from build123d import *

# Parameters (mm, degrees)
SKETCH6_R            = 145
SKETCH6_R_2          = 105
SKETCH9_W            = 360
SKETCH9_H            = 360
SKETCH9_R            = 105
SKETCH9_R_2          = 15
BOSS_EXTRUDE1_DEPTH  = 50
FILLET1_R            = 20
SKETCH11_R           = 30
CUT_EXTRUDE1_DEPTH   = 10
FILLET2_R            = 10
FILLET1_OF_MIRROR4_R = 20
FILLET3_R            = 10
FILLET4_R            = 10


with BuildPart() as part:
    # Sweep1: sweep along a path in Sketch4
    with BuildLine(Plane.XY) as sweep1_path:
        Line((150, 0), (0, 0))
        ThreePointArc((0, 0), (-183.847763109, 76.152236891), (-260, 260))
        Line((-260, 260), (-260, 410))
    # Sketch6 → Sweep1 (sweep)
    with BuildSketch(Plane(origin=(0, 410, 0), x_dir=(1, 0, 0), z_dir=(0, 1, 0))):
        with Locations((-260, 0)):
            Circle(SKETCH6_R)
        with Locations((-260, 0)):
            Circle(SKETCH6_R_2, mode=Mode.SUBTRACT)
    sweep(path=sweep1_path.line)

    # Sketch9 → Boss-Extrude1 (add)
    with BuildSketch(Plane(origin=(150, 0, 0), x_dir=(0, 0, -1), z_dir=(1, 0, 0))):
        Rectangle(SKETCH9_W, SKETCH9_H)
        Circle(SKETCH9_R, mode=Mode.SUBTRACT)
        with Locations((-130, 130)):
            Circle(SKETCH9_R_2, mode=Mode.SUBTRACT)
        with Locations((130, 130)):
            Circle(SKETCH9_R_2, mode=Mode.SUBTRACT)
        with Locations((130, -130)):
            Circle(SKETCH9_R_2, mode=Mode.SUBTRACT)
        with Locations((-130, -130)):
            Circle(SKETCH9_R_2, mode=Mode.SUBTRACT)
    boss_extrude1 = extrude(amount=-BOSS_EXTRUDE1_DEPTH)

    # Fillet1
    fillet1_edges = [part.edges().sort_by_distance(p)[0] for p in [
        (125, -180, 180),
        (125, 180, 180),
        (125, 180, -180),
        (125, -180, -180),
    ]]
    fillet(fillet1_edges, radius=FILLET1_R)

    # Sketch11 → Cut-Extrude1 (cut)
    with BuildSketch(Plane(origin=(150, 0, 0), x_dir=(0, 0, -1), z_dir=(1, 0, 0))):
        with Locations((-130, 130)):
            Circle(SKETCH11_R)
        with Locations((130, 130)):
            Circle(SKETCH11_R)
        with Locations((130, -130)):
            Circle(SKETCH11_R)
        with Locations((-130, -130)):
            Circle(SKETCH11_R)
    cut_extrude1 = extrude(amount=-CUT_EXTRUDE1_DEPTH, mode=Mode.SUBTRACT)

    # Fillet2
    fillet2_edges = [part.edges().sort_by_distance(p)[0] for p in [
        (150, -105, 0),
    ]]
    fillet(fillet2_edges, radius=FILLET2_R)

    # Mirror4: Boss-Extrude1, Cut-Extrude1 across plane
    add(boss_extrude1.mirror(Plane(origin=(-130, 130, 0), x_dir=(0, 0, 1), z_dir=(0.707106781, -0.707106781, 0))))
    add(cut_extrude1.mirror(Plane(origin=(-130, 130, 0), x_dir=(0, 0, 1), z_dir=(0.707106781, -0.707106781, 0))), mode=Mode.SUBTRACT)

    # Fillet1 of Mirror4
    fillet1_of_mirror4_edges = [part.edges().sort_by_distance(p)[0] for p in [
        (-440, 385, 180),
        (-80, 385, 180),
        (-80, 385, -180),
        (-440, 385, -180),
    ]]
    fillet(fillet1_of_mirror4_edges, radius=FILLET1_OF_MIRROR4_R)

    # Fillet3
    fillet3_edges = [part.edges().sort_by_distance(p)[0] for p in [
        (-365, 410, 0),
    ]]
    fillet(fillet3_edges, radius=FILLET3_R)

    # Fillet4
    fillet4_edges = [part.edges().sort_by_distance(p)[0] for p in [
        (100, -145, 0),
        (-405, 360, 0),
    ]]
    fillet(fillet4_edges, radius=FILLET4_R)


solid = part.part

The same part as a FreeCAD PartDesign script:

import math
import FreeCAD as App
import Part
import Sketcher
Q = App.Units.Quantity


def edges_at(feature, points):
    """Names of the edges that pass closest to the given points."""
    edges = feature.Shape.Edges
    near = lambda p: min(range(len(edges)), key=lambda i: edges[i].distToShape(Part.Vertex(*p))[0])
    return sorted({f"Edge{near(p) + 1}" for p in points})

doc = App.newDocument("Part")
body = doc.addObject("PartDesign::Body", "Body")

# Sketch on XZ plane
sketch1 = doc.addObject("Sketcher::SketchObject", "Sketch")
body.addObject(sketch1)
sketch1.AttachmentSupport = (doc.XZ_Plane, [""])
sketch1.MapMode = "FlatFace"
sketch1.AttachmentOffset = App.Placement(App.Vector(0, 0, -410), App.Rotation())
sketch1.addGeometry([
    Part.Circle(App.Vector(-260, 0, 0), App.Vector(0, 0, 1), 145),
    Part.Circle(App.Vector(-260, 0, 0), App.Vector(0, 0, 1), 105),
], False)
sketch1.addConstraint([
    Sketcher.Constraint("Coincident", 1, 3, 0, 3),
    Sketcher.Constraint("PointOnObject", 0, 3, -1),
    Sketcher.Constraint("Diameter", 0, Q("290 mm")),
    Sketcher.Constraint("Diameter", 1, Q("210 mm")),
    Sketcher.Constraint("DistanceX", 0, 3, -1, 1, Q("260 mm")),
])

# Sketch on XY plane
sketch2 = doc.addObject("Sketcher::SketchObject", "Sketch001")
body.addObject(sketch2)
sketch2.AttachmentSupport = (doc.XY_Plane, [""])
sketch2.MapMode = "FlatFace"
sketch2.addGeometry([
    Part.LineSegment(App.Vector(150, 0, 0), App.Vector(0, 0, 0)),
    Part.ArcOfCircle(Part.Circle(App.Vector(0, 260, 0), App.Vector(0, 0, 1), 260), math.radians(180), math.radians(270)),
    Part.LineSegment(App.Vector(-260, 260, 0), App.Vector(-260, 410, 0)),
], False)
sketch2.addConstraint([
    Sketcher.Constraint("Tangent", 0, 2, 1, 2),
    Sketcher.Constraint("Tangent", 1, 1, 2, 1),
    Sketcher.Constraint("Horizontal", 0),
    Sketcher.Constraint("Vertical", 2),
    Sketcher.Constraint("Coincident", 0, 2, -1, 1),
    Sketcher.Constraint("Equal", 0, 2),
    Sketcher.Constraint("Radius", 1, Q("260 mm")),
    Sketcher.Constraint("DistanceX", 0, 2, 0, 1, Q("150 mm")),
])
doc.recompute()

additivepipe = doc.addObject("PartDesign::AdditivePipe", "AdditivePipe")
body.addObject(additivepipe)
additivepipe.Profile = sketch1
additivepipe.Spine = (sketch2, ["Edge1", "Edge2", "Edge3"])

# Sketch on YZ plane
sketch3 = doc.addObject("Sketcher::SketchObject", "Sketch002")
body.addObject(sketch3)
sketch3.AttachmentSupport = (doc.YZ_Plane, [""])
sketch3.MapMode = "FlatFace"
sketch3.AttachmentOffset = App.Placement(App.Vector(0, 0, 150), App.Rotation())
sketch3.addGeometry([
    Part.LineSegment(App.Vector(180, 180, 0), App.Vector(-180, 180, 0)),  # 0
    Part.LineSegment(App.Vector(-180, 180, 0), App.Vector(-180, -180, 0)),  # 1
    Part.LineSegment(App.Vector(-180, -180, 0), App.Vector(180, -180, 0)),  # 2
    Part.LineSegment(App.Vector(180, -180, 0), App.Vector(180, 180, 0)),  # 3
    Part.Circle(App.Vector(-130, 130, 0), App.Vector(0, 0, 1), 15),  # 4
    Part.Circle(App.Vector(-130, -130, 0), App.Vector(0, 0, 1), 15),  # 5
    Part.Circle(App.Vector(130, 130, 0), App.Vector(0, 0, 1), 15),  # 6
    Part.Circle(App.Vector(0, 0, 0), App.Vector(0, 0, 1), 105),  # 7
    Part.Circle(App.Vector(130, -130, 0), App.Vector(0, 0, 1), 15),  # 8
], False)
sketch3.addConstraint([
    Sketcher.Constraint("Coincident", 0, 2, 1, 1),
    Sketcher.Constraint("Coincident", 1, 2, 2, 1),
    Sketcher.Constraint("Coincident", 2, 2, 3, 1),
    Sketcher.Constraint("Coincident", 3, 2, 0, 1),
    Sketcher.Constraint("Horizontal", 0),
    Sketcher.Constraint("Vertical", 1),
    Sketcher.Constraint("Horizontal", 2),
    Sketcher.Constraint("Vertical", 3),
    Sketcher.Constraint("Coincident", 7, 3, -1, 1),
    Sketcher.Constraint("Equal", 4, 5),
    Sketcher.Constraint("Equal", 5, 6),
    Sketcher.Constraint("Equal", 6, 8),
    Sketcher.Constraint("Symmetric", 5, 3, 6, 3, -1, 1),
    Sketcher.Constraint("Symmetric", 4, 3, 8, 3, -1, 1),
    Sketcher.Constraint("Symmetric", 0, 2, 2, 2, -1, 1),
    Sketcher.Constraint("Symmetric", 4, 3, 6, 3, -2),
    Sketcher.Constraint("Equal", 2, 1),
    Sketcher.Constraint("Diameter", 4, Q("30 mm")),
    Sketcher.Constraint("Diameter", 7, Q("210 mm")),
    Sketcher.Constraint("DistanceX", 0, 2, 0, 1, Q("360 mm")),
    Sketcher.Constraint("DistanceX", 4, 3, -1, 1, Q("130 mm")),
    Sketcher.Constraint("DistanceY", -1, 1, 4, 3, Q("130 mm")),
])
pad1 = doc.addObject("PartDesign::Pad", "Pad")
body.addObject(pad1)
pad1.Profile = sketch3
pad1.Length = 50
pad1.Reversed = True
doc.recompute()

fillet = doc.addObject("PartDesign::Fillet", "Fillet")
body.addObject(fillet)
fillet.Base = (pad1, edges_at(pad1, [
    (125, -180, 180),
    (125, 180, 180),
    (125, 180, -180),
    (125, -180, -180),
]))
fillet.Radius = 20

# Sketch on YZ plane
sketch4 = doc.addObject("Sketcher::SketchObject", "Sketch003")
body.addObject(sketch4)
sketch4.AttachmentSupport = (doc.YZ_Plane, [""])
sketch4.MapMode = "FlatFace"
sketch4.AttachmentOffset = App.Placement(App.Vector(0, 0, 150), App.Rotation())
sketch4.addGeometry([
    Part.Circle(App.Vector(130, 130, 0), App.Vector(0, 0, 1), 30),
    Part.Circle(App.Vector(130, -130, 0), App.Vector(0, 0, 1), 30),
    Part.Circle(App.Vector(-130, -130, 0), App.Vector(0, 0, 1), 30),
    Part.Circle(App.Vector(-130, 130, 0), App.Vector(0, 0, 1), 30),
], False)
sketch4.addConstraint([
    Sketcher.Constraint("Equal", 0, 1),
    Sketcher.Constraint("Equal", 1, 2),
    Sketcher.Constraint("Equal", 2, 3),
    Sketcher.Constraint("Symmetric", 0, 3, 2, 3, -1, 1),
    Sketcher.Constraint("Symmetric", 1, 3, 3, 3, -1, 1),
    Sketcher.Constraint("Symmetric", 1, 3, 2, 3, -2),
    Sketcher.Constraint("Diameter", 0, Q("60 mm")),
    Sketcher.Constraint("DistanceX", -1, 1, 0, 3, Q("130 mm")),
    Sketcher.Constraint("DistanceY", -1, 1, 0, 3, Q("130 mm")),
])
pocket1 = doc.addObject("PartDesign::Pocket", "Pocket")
body.addObject(pocket1)
pocket1.Profile = sketch4
pocket1.Length = 10
doc.recompute()

fillet2 = doc.addObject("PartDesign::Fillet", "Fillet001")
body.addObject(fillet2)
fillet2.Base = (pocket1, edges_at(pocket1, [(150, -105, 0)]))
fillet2.Radius = 10
doc.recompute()

datumplane = doc.addObject("PartDesign::Plane", "DatumPlane")
body.addObject(datumplane)
datumplane.Placement = App.Placement(App.Vector(-130, 130, 0), App.Rotation(App.Vector(-0.707106781, -0.707106781, 0), App.Vector(0, 0, -1), App.Vector(0.707106781, -0.707106781, 0), "ZXY"))
mirrored = doc.addObject("PartDesign::Mirrored", "Mirrored")
body.addObject(mirrored)
mirrored.Originals = [pad1, pocket1]
mirrored.MirrorPlane = (datumplane, [""])
body.Tip = mirrored
doc.recompute()

fillet3 = doc.addObject("PartDesign::Fillet", "Fillet002")
body.addObject(fillet3)
fillet3.Base = (mirrored, edges_at(mirrored, [
    (-440, 385, 180),
    (-80, 385, 180),
    (-80, 385, -180),
    (-440, 385, -180),
]))
fillet3.Radius = 20
doc.recompute()

fillet4 = doc.addObject("PartDesign::Fillet", "Fillet003")
body.addObject(fillet4)
fillet4.Base = (fillet3, edges_at(fillet3, [(-365, 410, 0)]))
fillet4.Radius = 10
doc.recompute()

fillet5 = doc.addObject("PartDesign::Fillet", "Fillet004")
body.addObject(fillet5)
fillet5.Base = (fillet4, edges_at(fillet4, [(100, -145, 0), (-405, 360, 0)]))
fillet5.Radius = 10

doc.recompute()
